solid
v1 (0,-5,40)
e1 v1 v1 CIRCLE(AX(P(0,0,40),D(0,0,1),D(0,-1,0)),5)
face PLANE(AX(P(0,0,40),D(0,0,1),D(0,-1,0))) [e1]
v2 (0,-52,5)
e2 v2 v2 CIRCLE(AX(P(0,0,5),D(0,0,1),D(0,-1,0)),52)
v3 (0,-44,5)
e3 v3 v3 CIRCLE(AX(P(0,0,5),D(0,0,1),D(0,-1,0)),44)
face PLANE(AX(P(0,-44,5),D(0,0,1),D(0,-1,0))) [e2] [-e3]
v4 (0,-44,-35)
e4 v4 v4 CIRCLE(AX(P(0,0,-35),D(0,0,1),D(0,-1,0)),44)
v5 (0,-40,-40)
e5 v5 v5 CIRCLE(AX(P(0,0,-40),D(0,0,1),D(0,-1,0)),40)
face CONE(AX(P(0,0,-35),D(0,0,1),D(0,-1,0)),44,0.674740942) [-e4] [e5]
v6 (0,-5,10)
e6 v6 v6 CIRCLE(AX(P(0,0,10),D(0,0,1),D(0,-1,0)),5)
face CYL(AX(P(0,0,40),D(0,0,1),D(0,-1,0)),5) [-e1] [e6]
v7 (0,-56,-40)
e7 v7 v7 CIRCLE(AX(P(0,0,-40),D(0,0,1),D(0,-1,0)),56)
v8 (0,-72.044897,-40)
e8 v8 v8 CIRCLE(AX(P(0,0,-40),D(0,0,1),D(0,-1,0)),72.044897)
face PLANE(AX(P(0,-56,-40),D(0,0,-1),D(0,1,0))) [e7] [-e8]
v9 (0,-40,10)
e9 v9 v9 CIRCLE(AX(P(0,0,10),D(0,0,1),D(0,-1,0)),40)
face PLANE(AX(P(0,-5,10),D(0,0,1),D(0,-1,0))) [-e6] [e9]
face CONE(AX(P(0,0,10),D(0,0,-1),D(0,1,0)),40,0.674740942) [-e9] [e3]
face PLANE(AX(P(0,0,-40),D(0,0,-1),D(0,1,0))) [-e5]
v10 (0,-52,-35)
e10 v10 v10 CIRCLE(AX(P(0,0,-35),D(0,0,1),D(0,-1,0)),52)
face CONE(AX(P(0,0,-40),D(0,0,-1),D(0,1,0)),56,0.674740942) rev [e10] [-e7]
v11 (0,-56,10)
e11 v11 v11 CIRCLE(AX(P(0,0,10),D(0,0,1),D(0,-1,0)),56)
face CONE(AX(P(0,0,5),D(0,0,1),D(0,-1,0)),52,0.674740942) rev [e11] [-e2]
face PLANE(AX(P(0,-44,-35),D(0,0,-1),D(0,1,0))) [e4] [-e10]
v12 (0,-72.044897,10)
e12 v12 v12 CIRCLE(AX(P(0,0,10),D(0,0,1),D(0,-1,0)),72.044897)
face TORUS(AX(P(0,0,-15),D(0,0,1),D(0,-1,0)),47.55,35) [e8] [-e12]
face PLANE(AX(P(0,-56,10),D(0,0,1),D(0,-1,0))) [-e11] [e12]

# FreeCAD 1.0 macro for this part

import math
import FreeCAD as App
import Part
import Sketcher
from FreeCAD import Vector
Q = App.Units.Quantity

doc = App.newDocument("Part")
params = doc.addObject("Spreadsheet::Sheet", "Params")
for row, (alias, value) in enumerate([
    ("sketch1_radius", "35 mm"),
    ("sketch1_width", "5 mm"),
    ("sketch1_width2", "35 mm"),
    ("sketch1_width3", "8 mm"),
    ("sketch1_height", "80 mm"),
    ("revolution_angle", "360 deg"),
], start=1):
    params.set(f"A{row}", alias)
    params.set(f"B{row}", "=" + value)
    params.setAlias(f"B{row}", alias)

body = doc.addObject("PartDesign::Body", "Body")

# Sketch on YZ plane
sketch1 = body.newObject("Sketcher::SketchObject", "Sketch")
sketch1.AttachmentSupport = (doc.getObject("YZ_Plane"), [""])
sketch1.MapMode = "FlatFace"
sketch1.addGeometry(Part.LineSegment(Vector(0, -40, 0), Vector(0, 40, 0)), False)
sketch1.addGeometry(Part.LineSegment(Vector(0, 40, 0), Vector(-5, 40, 0)), False)
sketch1.addGeometry(Part.LineSegment(Vector(-5, 40, 0), Vector(-5, 10, 0)), False)
sketch1.addGeometry(Part.LineSegment(Vector(-5, 10, 0), Vector(-40, 10, 0)), False)
sketch1.addGeometry(Part.LineSegment(Vector(-40, 10, 0), Vector(-44, 5, 0)), False)
sketch1.addGeometry(Part.LineSegment(Vector(-44, 5, 0), Vector(-52, 5, 0)), False)
sketch1.addGeometry(Part.LineSegment(Vector(-52, 5, 0), Vector(-56, 10, 0)), False)
sketch1.addGeometry(Part.LineSegment(Vector(-56, 10, 0), Vector(-72, 10, 0)), False)
sketch1.addGeometry(Part.ArcOfCircle(Part.Circle(Vector(-48, -15, 0), Vector(0, 0, 1), 35), math.radians(134), math.radians(226)), False)
sketch1.addGeometry(Part.LineSegment(Vector(-72, -40, 0), Vector(-56, -40, 0)), False)
sketch1.addGeometry(Part.LineSegment(Vector(-56, -40, 0), Vector(-52, -35, 0)), False)
sketch1.addGeometry(Part.LineSegment(Vector(-52, -35, 0), Vector(-44, -35, 0)), False)
sketch1.addGeometry(Part.LineSegment(Vector(-44, -35, 0), Vector(-40, -40, 0)), False)
sketch1.addGeometry(Part.LineSegment(Vector(-40, -40, 0), Vector(0, -40, 0)), False)
sketch1.addConstraint(Sketcher.Constraint("Coincident", 0, 2, 1, 1))
sketch1.addConstraint(Sketcher.Constraint("Coincident", 1, 2, 2, 1))
sketch1.addConstraint(Sketcher.Constraint("Coincident", 2, 2, 3, 1))
sketch1.addConstraint(Sketcher.Constraint("Coincident", 3, 2, 4, 1))
sketch1.addConstraint(Sketcher.Constraint("Coincident", 4, 2, 5, 1))
sketch1.addConstraint(Sketcher.Constraint("Coincident", 5, 2, 6, 1))
sketch1.addConstraint(Sketcher.Constraint("Coincident", 6, 2, 7, 1))
sketch1.addConstraint(Sketcher.Constraint("Coincident", 7, 2, 8, 1))
sketch1.addConstraint(Sketcher.Constraint("Coincident", 8, 2, 9, 1))
sketch1.addConstraint(Sketcher.Constraint("Coincident", 9, 2, 10, 1))
sketch1.addConstraint(Sketcher.Constraint("Coincident", 10, 2, 11, 1))
sketch1.addConstraint(Sketcher.Constraint("Coincident", 11, 2, 12, 1))
sketch1.addConstraint(Sketcher.Constraint("Coincident", 12, 2, 13, 1))
sketch1.addConstraint(Sketcher.Constraint("Coincident", 13, 2, 0, 1))
sketch1.addConstraint(Sketcher.Constraint("Vertical", 0))
sketch1.addConstraint(Sketcher.Constraint("Horizontal", 1))
sketch1.addConstraint(Sketcher.Constraint("Vertical", 2))
sketch1.addConstraint(Sketcher.Constraint("Horizontal", 3))
sketch1.addConstraint(Sketcher.Constraint("Horizontal", 5))
sketch1.addConstraint(Sketcher.Constraint("Horizontal", 7))
sketch1.addConstraint(Sketcher.Constraint("Horizontal", 9))
sketch1.addConstraint(Sketcher.Constraint("Horizontal", 11))
sketch1.addConstraint(Sketcher.Constraint("Horizontal", 13))
sketch1.addConstraint(Sketcher.Constraint("Symmetric", 0, 2, 13, 2, -1, 1))
sketch1.addConstraint(Sketcher.Constraint("Parallel", 4, 10))
sketch1.addConstraint(Sketcher.Constraint("Parallel", 6, 12))
sketch1.addConstraint(Sketcher.Constraint("Horizontal", 3, 2, 6, 2))
sketch1.addConstraint(Sketcher.Constraint("Horizontal", 9, 2, 12, 2))
sketch1.addConstraint(Sketcher.Constraint("Vertical", 7, 2, 8, 2))
sketch1.addConstraint(Sketcher.Constraint("Vertical", 6, 2, 9, 2))
sketch1.addConstraint(Sketcher.Constraint("Vertical", 5, 2, 10, 2))
sketch1.addConstraint(Sketcher.Constraint("Vertical", 4, 2, 11, 2))
sketch1.addConstraint(Sketcher.Constraint("Vertical", 3, 2, 12, 2))
sketch1.addConstraint(Sketcher.Constraint("Radius", 8, Q("35 mm")))
sketch1.addConstraint(Sketcher.Constraint("DistanceX", 1, 2, 1, 1, Q("5 mm")))
sketch1.addConstraint(Sketcher.Constraint("DistanceX", 3, 2, 3, 1, Q("35 mm")))
sketch1.addConstraint(Sketcher.Constraint("DistanceX", 5, 2, 5, 1, Q("8 mm")))
sketch1.addConstraint(Sketcher.Constraint("DistanceY", 0, 1, 0, 2, Q("80 mm")))
sketch1.addConstraint(Sketcher.Constraint("DistanceY", 2, 2, 2, 1, Q("30 mm")))
sketch1.addConstraint(Sketcher.Constraint("DistanceX", 4, 2, -1, 1, Q("44 mm")))
sketch1.addConstraint(Sketcher.Constraint("DistanceY", -1, 1, 4, 2, Q("5 mm")))
sketch1.addConstraint(Sketcher.Constraint("DistanceX", 8, 3, -1, 1, Q("47.55 mm")))
sketch1.setExpression("Constraints[33]", "Params.sketch1_radius")
sketch1.setExpression("Constraints[34]", "Params.sketch1_width")
sketch1.setExpression("Constraints[35]", "Params.sketch1_width2")
sketch1.setExpression("Constraints[36]", "Params.sketch1_width3")
sketch1.setExpression("Constraints[37]", "Params.sketch1_height")
revolution = body.newObject("PartDesign::Revolution", "Revolution")
revolution.Profile = sketch1
revolution.ReferenceAxis = (sketch1, ["V_Axis"])
revolution.setExpression("Angle", "Params.revolution_angle")

doc.recompute()
